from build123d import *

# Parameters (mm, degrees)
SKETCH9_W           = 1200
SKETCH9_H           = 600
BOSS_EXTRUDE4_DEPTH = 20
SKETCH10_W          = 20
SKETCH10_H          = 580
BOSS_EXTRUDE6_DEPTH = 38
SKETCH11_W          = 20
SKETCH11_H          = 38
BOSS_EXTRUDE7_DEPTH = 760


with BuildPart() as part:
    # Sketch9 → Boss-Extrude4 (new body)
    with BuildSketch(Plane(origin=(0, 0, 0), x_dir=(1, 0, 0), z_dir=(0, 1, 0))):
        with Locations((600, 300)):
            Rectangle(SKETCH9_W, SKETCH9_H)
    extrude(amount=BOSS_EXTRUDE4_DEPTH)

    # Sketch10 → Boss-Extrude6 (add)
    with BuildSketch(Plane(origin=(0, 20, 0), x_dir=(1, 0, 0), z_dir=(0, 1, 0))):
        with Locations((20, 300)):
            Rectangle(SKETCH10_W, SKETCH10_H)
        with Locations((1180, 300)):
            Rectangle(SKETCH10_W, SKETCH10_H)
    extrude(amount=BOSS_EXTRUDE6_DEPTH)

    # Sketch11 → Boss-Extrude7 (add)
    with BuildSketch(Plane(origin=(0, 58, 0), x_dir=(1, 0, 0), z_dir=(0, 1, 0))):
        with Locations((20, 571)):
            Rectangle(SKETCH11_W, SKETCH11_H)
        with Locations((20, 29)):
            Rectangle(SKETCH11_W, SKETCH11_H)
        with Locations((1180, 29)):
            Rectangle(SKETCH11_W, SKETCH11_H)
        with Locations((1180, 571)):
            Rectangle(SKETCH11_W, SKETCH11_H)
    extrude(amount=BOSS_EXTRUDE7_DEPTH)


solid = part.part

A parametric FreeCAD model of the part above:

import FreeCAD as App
import Part
import Sketcher


def add_polygon(sketch, points):
    """Adds a closed chain of lines whose ends are joined by coincident constraints."""
    first, n = sketch.GeometryCount, len(points)
    for a, b in zip(points, points[1:] + points[:1]):
        sketch.addGeometry(Part.LineSegment(App.Vector(*a, 0), App.Vector(*b, 0)), False)
    for i in range(n):
        sketch.addConstraint(Sketcher.Constraint("Coincident", first + i, 2, first + (i + 1) % n, 1))

doc = App.newDocument("Part")
body = doc.addObject("PartDesign::Body", "Body")

# Sketch on XZ plane
sketch1 = body.newObject("Sketcher::SketchObject", "Sketch")
sketch1.AttachmentSupport = (doc.getObject("XZ_Plane"), [""])
sketch1.MapMode = "FlatFace"
add_polygon(sketch1, [(0, -600), (0, 0), (1200, 0), (1200, -600)])  # lines 0-3
sketch1.addConstraint(Sketcher.Constraint("Vertical", 0))
sketch1.addConstraint(Sketcher.Constraint("Horizontal", 1))
sketch1.addConstraint(Sketcher.Constraint("Vertical", 2))
sketch1.addConstraint(Sketcher.Constraint("Horizontal", 3))
sketch1.addConstraint(Sketcher.Constraint("Coincident", 0, 2, -1, 1))
sketch1.addConstraint(Sketcher.Constraint("DistanceX", 1, 1, 1, 2, 1200.0))
sketch1.addConstraint(Sketcher.Constraint("DistanceY", 0, 1, 0, 2, 600.0))
pad1 = body.newObject("PartDesign::Pad", "Pad")
pad1.Profile = sketch1
pad1.Length = 20
pad1.Reversed = True

# Sketch on XZ plane
sketch2 = body.newObject("Sketcher::SketchObject", "Sketch001")
sketch2.AttachmentSupport = (doc.getObject("XZ_Plane"), [""])
sketch2.MapMode = "FlatFace"
sketch2.AttachmentOffset = App.Placement(App.Vector(0, 0, -20), App.Rotation())
add_polygon(sketch2, [(10, -590), (10, -10), (30, -10), (30, -590)])  # lines 0-3
add_polygon(sketch2, [(1170, -590), (1170, -10), (1190, -10), (1190, -590)])  # lines 4-7
sketch2.addConstraint(Sketcher.Constraint("Vertical", 0))
sketch2.addConstraint(Sketcher.Constraint("Horizontal", 1))
sketch2.addConstraint(Sketcher.Constraint("Vertical", 2))
sketch2.addConstraint(Sketcher.Constraint("Horizontal", 3))
sketch2.addConstraint(Sketcher.Constraint("Vertical", 4))
sketch2.addConstraint(Sketcher.Constraint("Horizontal", 5))
sketch2.addConstraint(Sketcher.Constraint("Vertical", 6))
sketch2.addConstraint(Sketcher.Constraint("Horizontal", 7))
sketch2.addConstraint(Sketcher.Constraint("Horizontal", 1, 2, 4, 2))
sketch2.addConstraint(Sketcher.Constraint("Horizontal", 3, 2, 6, 2))
sketch2.addConstraint(Sketcher.Constraint("Equal", 3, 5))
sketch2.addConstraint(Sketcher.Constraint("DistanceX", 1, 1, 1, 2, 20.0))
sketch2.addConstraint(Sketcher.Constraint("DistanceY", 0, 1, 0, 2, 580.0))
sketch2.addConstraint(Sketcher.Constraint("DistanceX", -1, 1, 0, 2, 10.0))
sketch2.addConstraint(Sketcher.Constraint("DistanceY", 0, 2, -1, 1, 10.0))
sketch2.addConstraint(Sketcher.Constraint("DistanceX", -1, 1, 4, 2, 1170.0))
pad2 = body.newObject("PartDesign::Pad", "Pad001")
pad2.Profile = sketch2
pad2.Length = 38
pad2.Reversed = True

# Sketch on XZ plane
sketch3 = body.newObject("Sketcher::SketchObject", "Sketch002")
sketch3.AttachmentSupport = (doc.getObject("XZ_Plane"), [""])
sketch3.MapMode = "FlatFace"
sketch3.AttachmentOffset = App.Placement(App.Vector(0, 0, -58), App.Rotation())
add_polygon(sketch3, [(10, -590), (10, -552), (30, -552), (30, -590)])  # lines 0-3
add_polygon(sketch3, [(10, -48), (10, -10), (30, -10), (30, -48)])  # lines 4-7
add_polygon(sketch3, [(1170, -48), (1170, -10), (1190, -10), (1190, -48)])  # lines 8-11
add_polygon(sketch3, [(1170, -590), (1170, -552), (1190, -552), (1190, -590)])  # lines 12-15
sketch3.addConstraint(Sketcher.Constraint("Vertical", 0))
sketch3.addConstraint(Sketcher.Constraint("Horizontal", 1))
sketch3.addConstraint(Sketcher.Constraint("Vertical", 2))
sketch3.addConstraint(Sketcher.Constraint("Horizontal", 3))
sketch3.addConstraint(Sketcher.Constraint("Vertical", 4))
sketch3.addConstraint(Sketcher.Constraint("Horizontal", 5))
sketch3.addConstraint(Sketcher.Constraint("Vertical", 6))
sketch3.addConstraint(Sketcher.Constraint("Horizontal", 7))
sketch3.addConstraint(Sketcher.Constraint("Vertical", 8))
sketch3.addConstraint(Sketcher.Constraint("Horizontal", 9))
sketch3.addConstraint(Sketcher.Constraint("Vertical", 10))
sketch3.addConstraint(Sketcher.Constraint("Horizontal", 11))
sketch3.addConstraint(Sketcher.Constraint("Vertical", 12))
sketch3.addConstraint(Sketcher.Constraint("Horizontal", 13))
sketch3.addConstraint(Sketcher.Constraint("Vertical", 14))
sketch3.addConstraint(Sketcher.Constraint("Horizontal", 15))
sketch3.addConstraint(Sketcher.Constraint("Horizontal", 5, 2, 8, 2))
sketch3.addConstraint(Sketcher.Constraint("Horizontal", 7, 2, 10, 2))
sketch3.addConstraint(Sketcher.Constraint("Horizontal", 1, 2, 12, 2))
sketch3.addConstraint(Sketcher.Constraint("Horizontal", 3, 2, 14, 2))
sketch3.addConstraint(Sketcher.Constraint("Vertical", 3, 2, 4, 2))
sketch3.addConstraint(Sketcher.Constraint("Vertical", 2, 2, 5, 2))
sketch3.addConstraint(Sketcher.Constraint("Vertical", 11, 2, 12, 2))
sketch3.addConstraint(Sketcher.Constraint("Vertical", 10, 2, 13, 2))
sketch3.addConstraint(Sketcher.Constraint("Equal", 7, 9))
sketch3.addConstraint(Sketcher.Constraint("Equal", 2, 4))
sketch3.addConstraint(Sketcher.Constraint("DistanceX", 1, 1, 1, 2, 20.0))
sketch3.addConstraint(Sketcher.Constraint("DistanceY", 0, 1, 0, 2, 38.0))
sketch3.addConstraint(Sketcher.Constraint("DistanceX", -1, 1, 0, 2, 10.0))
sketch3.addConstraint(Sketcher.Constraint("DistanceY", 0, 2, -1, 1, 552.0))
sketch3.addConstraint(Sketcher.Constraint("DistanceY", 4, 2, -1, 1, 10.0))
sketch3.addConstraint(Sketcher.Constraint("DistanceX", -1, 1, 8, 2, 1170.0))
pad3 = body.newObject("PartDesign::Pad", "Pad002")
pad3.Profile = sketch3
pad3.Length = 760
pad3.Reversed = True

doc.recompute()
